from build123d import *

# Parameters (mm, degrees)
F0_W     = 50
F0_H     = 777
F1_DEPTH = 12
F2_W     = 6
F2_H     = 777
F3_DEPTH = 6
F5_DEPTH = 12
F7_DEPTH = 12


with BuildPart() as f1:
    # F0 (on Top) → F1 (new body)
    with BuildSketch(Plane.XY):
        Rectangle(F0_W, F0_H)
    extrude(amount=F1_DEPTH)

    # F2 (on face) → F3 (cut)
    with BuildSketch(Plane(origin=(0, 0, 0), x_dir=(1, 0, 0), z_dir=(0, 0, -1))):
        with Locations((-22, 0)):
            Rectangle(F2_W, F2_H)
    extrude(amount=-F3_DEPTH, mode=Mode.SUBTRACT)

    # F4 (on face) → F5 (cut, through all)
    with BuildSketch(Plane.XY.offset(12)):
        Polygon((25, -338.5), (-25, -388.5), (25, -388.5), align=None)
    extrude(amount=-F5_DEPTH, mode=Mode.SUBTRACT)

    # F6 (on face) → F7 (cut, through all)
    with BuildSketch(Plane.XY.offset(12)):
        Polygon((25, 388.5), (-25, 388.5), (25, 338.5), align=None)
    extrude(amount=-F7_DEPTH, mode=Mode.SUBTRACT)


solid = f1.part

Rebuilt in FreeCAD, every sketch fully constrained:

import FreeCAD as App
import Part
import Sketcher
from FreeCAD import Vector
Q = App.Units.Quantity

doc = App.newDocument("Part")
body = doc.addObject("PartDesign::Body", "Body")

# Sketch on XY plane
sketch1 = body.newObject("Sketcher::SketchObject", "Sketch")
sketch1.AttachmentSupport = (doc.getObject("XY_Plane"), [""])
sketch1.MapMode = "FlatFace"
sketch1.addGeometry([
    Part.LineSegment(Vector(-25, 388, 0), Vector(-25, -388, 0)),
    Part.LineSegment(Vector(-25, -388, 0), Vector(25, -388, 0)),
    Part.LineSegment(Vector(25, -388, 0), Vector(25, 388, 0)),
    Part.LineSegment(Vector(25, 388, 0), Vector(-25, 388, 0)),
], False)
sketch1.addConstraint([
    Sketcher.Constraint("Coincident", 0, 2, 1, 1),
    Sketcher.Constraint("Coincident", 1, 2, 2, 1),
    Sketcher.Constraint("Coincident", 2, 2, 3, 1),
    Sketcher.Constraint("Coincident", 3, 2, 0, 1),
    Sketcher.Constraint("Vertical", 0),
    Sketcher.Constraint("Horizontal", 1),
    Sketcher.Constraint("Vertical", 2),
    Sketcher.Constraint("Horizontal", 3),
    Sketcher.Constraint("Symmetric", 0, 2, 2, 2, -1, 1),
    Sketcher.Constraint("DistanceX", 1, 1, 1, 2, Q("50 mm")),
    Sketcher.Constraint("DistanceY", 0, 2, 0, 1, Q("777 mm")),
])
pad1 = body.newObject("PartDesign::Pad", "Pad")
pad1.Profile = sketch1
pad1.Length = 12

# Sketch on XY plane
sketch2 = body.newObject("Sketcher::SketchObject", "Sketch001")
sketch2.AttachmentSupport = (doc.getObject("XY_Plane"), [""])
sketch2.MapMode = "FlatFace"
sketch2.addGeometry([
    Part.LineSegment(Vector(-25, -388, 0), Vector(-25, 388, 0)),
    Part.LineSegment(Vector(-25, 388, 0), Vector(-19, 388, 0)),
    Part.LineSegment(Vector(-19, 388, 0), Vector(-19, -388, 0)),
    Part.LineSegment(Vector(-19, -388, 0), Vector(-25, -388, 0)),
], False)
sketch2.addConstraint([
    Sketcher.Constraint("Coincident", 0, 2, 1, 1),
    Sketcher.Constraint("Coincident", 1, 2, 2, 1),
    Sketcher.Constraint("Coincident", 2, 2, 3, 1),
    Sketcher.Constraint("Coincident", 3, 2, 0, 1),
    Sketcher.Constraint("Vertical", 0),
    Sketcher.Constraint("Horizontal", 1),
    Sketcher.Constraint("Vertical", 2),
    Sketcher.Constraint("Horizontal", 3),
    Sketcher.Constraint("DistanceX", 1, 1, 1, 2, Q("6 mm")),
    Sketcher.Constraint("DistanceY", 0, 1, 0, 2, Q("777 mm")),
    Sketcher.Constraint("DistanceX", 0, 2, -1, 1, Q("25 mm")),
    Sketcher.Constraint("DistanceY", -1, 1, 0, 2, Q("388.5 mm")),
])
pocket1 = body.newObject("PartDesign::Pocket", "Pocket")
pocket1.Profile = sketch2
pocket1.Length = 6
pocket1.Reversed = True

# Sketch on XY plane
sketch3 = body.newObject("Sketcher::SketchObject", "Sketch002")
sketch3.AttachmentSupport = (doc.getObject("XY_Plane"), [""])
sketch3.MapMode = "FlatFace"
sketch3.AttachmentOffset = App.Placement(Vector(0, 0, 12), App.Rotation())
sketch3.addGeometry([
    Part.LineSegment(Vector(25, -338, 0), Vector(-25, -388, 0)),
    Part.LineSegment(Vector(-25, -388, 0), Vector(25, -388, 0)),
    Part.LineSegment(Vector(25, -388, 0), Vector(25, -338, 0)),
], False)
sketch3.addConstraint([
    Sketcher.Constraint("Coincident", 0, 2, 1, 1),
    Sketcher.Constraint("Coincident", 1, 2, 2, 1),
    Sketcher.Constraint("Coincident", 2, 2, 0, 1),
    Sketcher.Constraint("Horizontal", 1),
    Sketcher.Constraint("Vertical", 2),
    Sketcher.Constraint("Equal", 1, 2),
    Sketcher.Constraint("DistanceX", 1, 1, 1, 2, Q("50 mm")),
    Sketcher.Constraint("DistanceX", 0, 2, -1, 1, Q("25 mm")),
    Sketcher.Constraint("DistanceY", 0, 2, -1, 1, Q("388.5 mm")),
])
pocket2 = body.newObject("PartDesign::Pocket", "Pocket001")
pocket2.Profile = sketch3
pocket2.Type = "ThroughAll"

# Sketch on XY plane
sketch4 = body.newObject("Sketcher::SketchObject", "Sketch003")
sketch4.AttachmentSupport = (doc.getObject("XY_Plane"), [""])
sketch4.MapMode = "FlatFace"
sketch4.AttachmentOffset = App.Placement(Vector(0, 0, 12), App.Rotation())
sketch4.addGeometry([
    Part.LineSegment(Vector(25, 388, 0), Vector(-25, 388, 0)),
    Part.LineSegment(Vector(-25, 388, 0), Vector(25, 338, 0)),
    Part.LineSegment(Vector(25, 338, 0), Vector(25, 388, 0)),
], False)
sketch4.addConstraint([
    Sketcher.Constraint("Coincident", 0, 2, 1, 1),
    Sketcher.Constraint("Coincident", 1, 2, 2, 1),
    Sketcher.Constraint("Coincident", 2, 2, 0, 1),
    Sketcher.Constraint("Horizontal", 0),
    Sketcher.Constraint("Vertical", 2),
    Sketcher.Constraint("Equal", 0, 2),
    Sketcher.Constraint("DistanceX", 0, 2, 0, 1, Q("50 mm")),
    Sketcher.Constraint("DistanceX", 0, 2, -1, 1, Q("25 mm")),
    Sketcher.Constraint("DistanceY", -1, 1, 0, 2, Q("388.5 mm")),
])
pocket3 = body.newObject("PartDesign::Pocket", "Pocket002")
pocket3.Profile = sketch4
pocket3.Type = "ThroughAll"

doc.recompute()
